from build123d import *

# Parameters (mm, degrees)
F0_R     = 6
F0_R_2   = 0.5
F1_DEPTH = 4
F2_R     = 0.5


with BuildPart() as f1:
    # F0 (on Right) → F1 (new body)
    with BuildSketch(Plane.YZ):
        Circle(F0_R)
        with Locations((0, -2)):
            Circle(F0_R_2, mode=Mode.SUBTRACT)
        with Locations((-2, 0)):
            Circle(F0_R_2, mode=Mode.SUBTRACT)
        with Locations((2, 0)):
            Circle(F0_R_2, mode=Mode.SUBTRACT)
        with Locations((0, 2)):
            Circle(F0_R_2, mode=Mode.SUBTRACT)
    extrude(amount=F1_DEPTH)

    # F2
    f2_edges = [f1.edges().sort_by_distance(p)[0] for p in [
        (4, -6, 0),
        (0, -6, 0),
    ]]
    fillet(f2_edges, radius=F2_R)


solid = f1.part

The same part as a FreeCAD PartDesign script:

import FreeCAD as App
import Part
import Sketcher
from FreeCAD import Vector


def edges_at(feature, points):
    """Names of the edges that pass closest to the given points."""
    edges = feature.Shape.Edges
    near = lambda p: min(range(len(edges)), key=lambda i: edges[i].distToShape(Part.Vertex(*p))[0])
    return sorted({f"Edge{near(p) + 1}" for p in points})

doc = App.newDocument("Part")
params = doc.addObject("Spreadsheet::Sheet", "Params")
for row, (alias, value) in enumerate([
    ("sketch1_diameter", "12 mm"),
    ("sketch1_diameter2", "1 mm"),
    ("pad1_length", "4 mm"),
    ("fillet_radius", "0.5 mm"),
], start=1):
    params.set(f"A{row}", alias)
    params.set(f"B{row}", "=" + value)
    params.setAlias(f"B{row}", alias)

body = doc.addObject("PartDesign::Body", "Body")

# Sketch on YZ plane
sketch1 = body.newObject("Sketcher::SketchObject", "Sketch")
sketch1.AttachmentSupport = (doc.getObject("YZ_Plane"), [""])
sketch1.MapMode = "FlatFace"
sketch1.addGeometry([
    Part.Circle(Vector(0, 0, 0), Vector(0, 0, 1), 6),  # 0
    Part.Circle(Vector(0, -2, 0), Vector(0, 0, 1), 0.5),  # 1
    Part.Circle(Vector(-2, 0, 0), Vector(0, 0, 1), 0.5),  # 2
    Part.Circle(Vector(2, 0, 0), Vector(0, 0, 1), 0.5),  # 3
    Part.Circle(Vector(0, 2, 0), Vector(0, 0, 1), 0.5),  # 4
], False)
sketch1.addConstraint([
    Sketcher.Constraint("Coincident", 0, 3, -1, 1),
    Sketcher.Constraint("Equal", 1, 2),
    Sketcher.Constraint("Equal", 2, 3),
    Sketcher.Constraint("Equal", 3, 4),
    Sketcher.Constraint("Symmetric", 2, 3, 3, 3, -1, 1),
    Sketcher.Constraint("Symmetric", 1, 3, 4, 3, -1, 1),
    Sketcher.Constraint("PointOnObject", 1, 3, -2),
    Sketcher.Constraint("PointOnObject", 2, 3, -1),
    Sketcher.Constraint("Diameter", 0, 12.0),
    Sketcher.Constraint("Diameter", 1, 1.0),
    Sketcher.Constraint("DistanceY", 1, 3, -1, 1, 2.0),
    Sketcher.Constraint("DistanceX", 2, 3, -1, 1, 2.0),
])
sketch1.setExpression("Constraints[8]", "Params.sketch1_diameter")
sketch1.setExpression("Constraints[9]", "Params.sketch1_diameter2")
pad1 = body.newObject("PartDesign::Pad", "Pad")
pad1.Profile = sketch1
pad1.setExpression("Length", "Params.pad1_length")
doc.recompute()

fillet = body.newObject("PartDesign::Fillet", "Fillet")
fillet.Base = (pad1, edges_at(pad1, [(4, -6, 0), (0, -6, 0)]))
fillet.setExpression("Radius", "Params.fillet_radius")

doc.recompute()
